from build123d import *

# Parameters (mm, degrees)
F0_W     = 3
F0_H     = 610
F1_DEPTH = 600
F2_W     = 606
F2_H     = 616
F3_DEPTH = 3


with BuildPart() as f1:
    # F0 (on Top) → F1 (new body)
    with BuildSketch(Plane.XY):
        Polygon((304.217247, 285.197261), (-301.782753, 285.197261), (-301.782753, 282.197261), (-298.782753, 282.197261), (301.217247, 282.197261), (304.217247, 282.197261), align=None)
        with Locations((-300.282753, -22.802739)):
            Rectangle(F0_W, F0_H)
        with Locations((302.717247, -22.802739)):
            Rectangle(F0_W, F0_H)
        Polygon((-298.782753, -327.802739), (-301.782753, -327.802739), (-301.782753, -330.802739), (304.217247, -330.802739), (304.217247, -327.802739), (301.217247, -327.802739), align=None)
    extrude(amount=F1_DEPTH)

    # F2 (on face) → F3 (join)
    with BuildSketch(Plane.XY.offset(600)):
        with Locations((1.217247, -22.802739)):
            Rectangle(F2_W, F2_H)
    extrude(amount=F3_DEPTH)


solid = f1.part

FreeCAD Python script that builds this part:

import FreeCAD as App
import Part
import Sketcher
from FreeCAD import Vector
Q = App.Units.Quantity


def add_polygon(sketch, points):
    """Adds a closed chain of lines whose ends are joined by coincident constraints."""
    first, n = sketch.GeometryCount, len(points)
    for a, b in zip(points, points[1:] + points[:1]):
        sketch.addGeometry(Part.LineSegment(App.Vector(*a, 0), App.Vector(*b, 0)), False)
    for i in range(n):
        sketch.addConstraint(Sketcher.Constraint("Coincident", first + i, 2, first + (i + 1) % n, 1))

doc = App.newDocument("Part")
body = doc.addObject("PartDesign::Body", "Body")

sketch1 = doc.addObject("Sketcher::SketchObject", "Sketch")
body.addObject(sketch1)
sketch1.AttachmentSupport = (doc.XY_Plane, [""])
sketch1.MapMode = "FlatFace"
add_polygon(sketch1, [(304.217247, 285.197261), (-301.782753, 285.197261), (-301.782753, -330.802739), (304.217247, -330.802739)])
add_polygon(sketch1, [(-298.782753, -327.802739), (-298.782753, 282.197261), (301.217247, 282.197261), (301.217247, -327.802739)])
sketch1.addConstraint([
    Sketcher.Constraint("Horizontal", 0),
    Sketcher.Constraint("Vertical", 1),
    Sketcher.Constraint("Horizontal", 2),
    Sketcher.Constraint("Vertical", 3),
    Sketcher.Constraint("Vertical", 4),
    Sketcher.Constraint("Horizontal", 5),
    Sketcher.Constraint("Vertical", 6),
    Sketcher.Constraint("Horizontal", 7),
    Sketcher.Constraint("DistanceX", 0, 2, 0, 1, Q("606 mm")),
    Sketcher.Constraint("DistanceX", 5, 1, 5, 2, Q("600 mm")),
    Sketcher.Constraint("DistanceY", 1, 2, 1, 1, Q("616 mm")),
    Sketcher.Constraint("DistanceY", 4, 1, 4, 2, Q("610 mm")),
    Sketcher.Constraint("DistanceX", 0, 2, 4, 2, Q("3 mm")),
    Sketcher.Constraint("DistanceY", 4, 2, 0, 2, Q("3 mm")),
    Sketcher.Constraint("DistanceY", -1, 1, 0, 2, Q("285.197261 mm")),
    Sketcher.Constraint("DistanceX", 0, 2, -1, 1, Q("301.782753 mm")),
])
pad1 = doc.addObject("PartDesign::Pad", "Pad")
body.addObject(pad1)
pad1.Profile = sketch1
pad1.Length = 600

sketch2 = doc.addObject("Sketcher::SketchObject", "Sketch001")
body.addObject(sketch2)
sketch2.AttachmentSupport = (doc.XY_Plane, [""])
sketch2.MapMode = "FlatFace"
sketch2.AttachmentOffset = App.Placement(Vector(0, 0, 600), App.Rotation())
add_polygon(sketch2, [(-301.782753, 285.197261), (-301.782753, -330.802739), (304.217247, -330.802739), (304.217247, 285.197261)])
sketch2.addConstraint([
    Sketcher.Constraint("Vertical", 0),
    Sketcher.Constraint("Horizontal", 1),
    Sketcher.Constraint("Vertical", 2),
    Sketcher.Constraint("Horizontal", 3),
    Sketcher.Constraint("DistanceX", 1, 1, 1, 2, Q("606 mm")),
    Sketcher.Constraint("DistanceY", 0, 2, 0, 1, Q("616 mm")),
    Sketcher.Constraint("DistanceY", 0, 2, -1, 1, Q("330.802739 mm")),
    Sketcher.Constraint("DistanceX", 0, 2, -1, 1, Q("301.782753 mm")),
])
pad2 = doc.addObject("PartDesign::Pad", "Pad001")
body.addObject(pad2)
pad2.Profile = sketch2
pad2.Length = 3

doc.recompute()
